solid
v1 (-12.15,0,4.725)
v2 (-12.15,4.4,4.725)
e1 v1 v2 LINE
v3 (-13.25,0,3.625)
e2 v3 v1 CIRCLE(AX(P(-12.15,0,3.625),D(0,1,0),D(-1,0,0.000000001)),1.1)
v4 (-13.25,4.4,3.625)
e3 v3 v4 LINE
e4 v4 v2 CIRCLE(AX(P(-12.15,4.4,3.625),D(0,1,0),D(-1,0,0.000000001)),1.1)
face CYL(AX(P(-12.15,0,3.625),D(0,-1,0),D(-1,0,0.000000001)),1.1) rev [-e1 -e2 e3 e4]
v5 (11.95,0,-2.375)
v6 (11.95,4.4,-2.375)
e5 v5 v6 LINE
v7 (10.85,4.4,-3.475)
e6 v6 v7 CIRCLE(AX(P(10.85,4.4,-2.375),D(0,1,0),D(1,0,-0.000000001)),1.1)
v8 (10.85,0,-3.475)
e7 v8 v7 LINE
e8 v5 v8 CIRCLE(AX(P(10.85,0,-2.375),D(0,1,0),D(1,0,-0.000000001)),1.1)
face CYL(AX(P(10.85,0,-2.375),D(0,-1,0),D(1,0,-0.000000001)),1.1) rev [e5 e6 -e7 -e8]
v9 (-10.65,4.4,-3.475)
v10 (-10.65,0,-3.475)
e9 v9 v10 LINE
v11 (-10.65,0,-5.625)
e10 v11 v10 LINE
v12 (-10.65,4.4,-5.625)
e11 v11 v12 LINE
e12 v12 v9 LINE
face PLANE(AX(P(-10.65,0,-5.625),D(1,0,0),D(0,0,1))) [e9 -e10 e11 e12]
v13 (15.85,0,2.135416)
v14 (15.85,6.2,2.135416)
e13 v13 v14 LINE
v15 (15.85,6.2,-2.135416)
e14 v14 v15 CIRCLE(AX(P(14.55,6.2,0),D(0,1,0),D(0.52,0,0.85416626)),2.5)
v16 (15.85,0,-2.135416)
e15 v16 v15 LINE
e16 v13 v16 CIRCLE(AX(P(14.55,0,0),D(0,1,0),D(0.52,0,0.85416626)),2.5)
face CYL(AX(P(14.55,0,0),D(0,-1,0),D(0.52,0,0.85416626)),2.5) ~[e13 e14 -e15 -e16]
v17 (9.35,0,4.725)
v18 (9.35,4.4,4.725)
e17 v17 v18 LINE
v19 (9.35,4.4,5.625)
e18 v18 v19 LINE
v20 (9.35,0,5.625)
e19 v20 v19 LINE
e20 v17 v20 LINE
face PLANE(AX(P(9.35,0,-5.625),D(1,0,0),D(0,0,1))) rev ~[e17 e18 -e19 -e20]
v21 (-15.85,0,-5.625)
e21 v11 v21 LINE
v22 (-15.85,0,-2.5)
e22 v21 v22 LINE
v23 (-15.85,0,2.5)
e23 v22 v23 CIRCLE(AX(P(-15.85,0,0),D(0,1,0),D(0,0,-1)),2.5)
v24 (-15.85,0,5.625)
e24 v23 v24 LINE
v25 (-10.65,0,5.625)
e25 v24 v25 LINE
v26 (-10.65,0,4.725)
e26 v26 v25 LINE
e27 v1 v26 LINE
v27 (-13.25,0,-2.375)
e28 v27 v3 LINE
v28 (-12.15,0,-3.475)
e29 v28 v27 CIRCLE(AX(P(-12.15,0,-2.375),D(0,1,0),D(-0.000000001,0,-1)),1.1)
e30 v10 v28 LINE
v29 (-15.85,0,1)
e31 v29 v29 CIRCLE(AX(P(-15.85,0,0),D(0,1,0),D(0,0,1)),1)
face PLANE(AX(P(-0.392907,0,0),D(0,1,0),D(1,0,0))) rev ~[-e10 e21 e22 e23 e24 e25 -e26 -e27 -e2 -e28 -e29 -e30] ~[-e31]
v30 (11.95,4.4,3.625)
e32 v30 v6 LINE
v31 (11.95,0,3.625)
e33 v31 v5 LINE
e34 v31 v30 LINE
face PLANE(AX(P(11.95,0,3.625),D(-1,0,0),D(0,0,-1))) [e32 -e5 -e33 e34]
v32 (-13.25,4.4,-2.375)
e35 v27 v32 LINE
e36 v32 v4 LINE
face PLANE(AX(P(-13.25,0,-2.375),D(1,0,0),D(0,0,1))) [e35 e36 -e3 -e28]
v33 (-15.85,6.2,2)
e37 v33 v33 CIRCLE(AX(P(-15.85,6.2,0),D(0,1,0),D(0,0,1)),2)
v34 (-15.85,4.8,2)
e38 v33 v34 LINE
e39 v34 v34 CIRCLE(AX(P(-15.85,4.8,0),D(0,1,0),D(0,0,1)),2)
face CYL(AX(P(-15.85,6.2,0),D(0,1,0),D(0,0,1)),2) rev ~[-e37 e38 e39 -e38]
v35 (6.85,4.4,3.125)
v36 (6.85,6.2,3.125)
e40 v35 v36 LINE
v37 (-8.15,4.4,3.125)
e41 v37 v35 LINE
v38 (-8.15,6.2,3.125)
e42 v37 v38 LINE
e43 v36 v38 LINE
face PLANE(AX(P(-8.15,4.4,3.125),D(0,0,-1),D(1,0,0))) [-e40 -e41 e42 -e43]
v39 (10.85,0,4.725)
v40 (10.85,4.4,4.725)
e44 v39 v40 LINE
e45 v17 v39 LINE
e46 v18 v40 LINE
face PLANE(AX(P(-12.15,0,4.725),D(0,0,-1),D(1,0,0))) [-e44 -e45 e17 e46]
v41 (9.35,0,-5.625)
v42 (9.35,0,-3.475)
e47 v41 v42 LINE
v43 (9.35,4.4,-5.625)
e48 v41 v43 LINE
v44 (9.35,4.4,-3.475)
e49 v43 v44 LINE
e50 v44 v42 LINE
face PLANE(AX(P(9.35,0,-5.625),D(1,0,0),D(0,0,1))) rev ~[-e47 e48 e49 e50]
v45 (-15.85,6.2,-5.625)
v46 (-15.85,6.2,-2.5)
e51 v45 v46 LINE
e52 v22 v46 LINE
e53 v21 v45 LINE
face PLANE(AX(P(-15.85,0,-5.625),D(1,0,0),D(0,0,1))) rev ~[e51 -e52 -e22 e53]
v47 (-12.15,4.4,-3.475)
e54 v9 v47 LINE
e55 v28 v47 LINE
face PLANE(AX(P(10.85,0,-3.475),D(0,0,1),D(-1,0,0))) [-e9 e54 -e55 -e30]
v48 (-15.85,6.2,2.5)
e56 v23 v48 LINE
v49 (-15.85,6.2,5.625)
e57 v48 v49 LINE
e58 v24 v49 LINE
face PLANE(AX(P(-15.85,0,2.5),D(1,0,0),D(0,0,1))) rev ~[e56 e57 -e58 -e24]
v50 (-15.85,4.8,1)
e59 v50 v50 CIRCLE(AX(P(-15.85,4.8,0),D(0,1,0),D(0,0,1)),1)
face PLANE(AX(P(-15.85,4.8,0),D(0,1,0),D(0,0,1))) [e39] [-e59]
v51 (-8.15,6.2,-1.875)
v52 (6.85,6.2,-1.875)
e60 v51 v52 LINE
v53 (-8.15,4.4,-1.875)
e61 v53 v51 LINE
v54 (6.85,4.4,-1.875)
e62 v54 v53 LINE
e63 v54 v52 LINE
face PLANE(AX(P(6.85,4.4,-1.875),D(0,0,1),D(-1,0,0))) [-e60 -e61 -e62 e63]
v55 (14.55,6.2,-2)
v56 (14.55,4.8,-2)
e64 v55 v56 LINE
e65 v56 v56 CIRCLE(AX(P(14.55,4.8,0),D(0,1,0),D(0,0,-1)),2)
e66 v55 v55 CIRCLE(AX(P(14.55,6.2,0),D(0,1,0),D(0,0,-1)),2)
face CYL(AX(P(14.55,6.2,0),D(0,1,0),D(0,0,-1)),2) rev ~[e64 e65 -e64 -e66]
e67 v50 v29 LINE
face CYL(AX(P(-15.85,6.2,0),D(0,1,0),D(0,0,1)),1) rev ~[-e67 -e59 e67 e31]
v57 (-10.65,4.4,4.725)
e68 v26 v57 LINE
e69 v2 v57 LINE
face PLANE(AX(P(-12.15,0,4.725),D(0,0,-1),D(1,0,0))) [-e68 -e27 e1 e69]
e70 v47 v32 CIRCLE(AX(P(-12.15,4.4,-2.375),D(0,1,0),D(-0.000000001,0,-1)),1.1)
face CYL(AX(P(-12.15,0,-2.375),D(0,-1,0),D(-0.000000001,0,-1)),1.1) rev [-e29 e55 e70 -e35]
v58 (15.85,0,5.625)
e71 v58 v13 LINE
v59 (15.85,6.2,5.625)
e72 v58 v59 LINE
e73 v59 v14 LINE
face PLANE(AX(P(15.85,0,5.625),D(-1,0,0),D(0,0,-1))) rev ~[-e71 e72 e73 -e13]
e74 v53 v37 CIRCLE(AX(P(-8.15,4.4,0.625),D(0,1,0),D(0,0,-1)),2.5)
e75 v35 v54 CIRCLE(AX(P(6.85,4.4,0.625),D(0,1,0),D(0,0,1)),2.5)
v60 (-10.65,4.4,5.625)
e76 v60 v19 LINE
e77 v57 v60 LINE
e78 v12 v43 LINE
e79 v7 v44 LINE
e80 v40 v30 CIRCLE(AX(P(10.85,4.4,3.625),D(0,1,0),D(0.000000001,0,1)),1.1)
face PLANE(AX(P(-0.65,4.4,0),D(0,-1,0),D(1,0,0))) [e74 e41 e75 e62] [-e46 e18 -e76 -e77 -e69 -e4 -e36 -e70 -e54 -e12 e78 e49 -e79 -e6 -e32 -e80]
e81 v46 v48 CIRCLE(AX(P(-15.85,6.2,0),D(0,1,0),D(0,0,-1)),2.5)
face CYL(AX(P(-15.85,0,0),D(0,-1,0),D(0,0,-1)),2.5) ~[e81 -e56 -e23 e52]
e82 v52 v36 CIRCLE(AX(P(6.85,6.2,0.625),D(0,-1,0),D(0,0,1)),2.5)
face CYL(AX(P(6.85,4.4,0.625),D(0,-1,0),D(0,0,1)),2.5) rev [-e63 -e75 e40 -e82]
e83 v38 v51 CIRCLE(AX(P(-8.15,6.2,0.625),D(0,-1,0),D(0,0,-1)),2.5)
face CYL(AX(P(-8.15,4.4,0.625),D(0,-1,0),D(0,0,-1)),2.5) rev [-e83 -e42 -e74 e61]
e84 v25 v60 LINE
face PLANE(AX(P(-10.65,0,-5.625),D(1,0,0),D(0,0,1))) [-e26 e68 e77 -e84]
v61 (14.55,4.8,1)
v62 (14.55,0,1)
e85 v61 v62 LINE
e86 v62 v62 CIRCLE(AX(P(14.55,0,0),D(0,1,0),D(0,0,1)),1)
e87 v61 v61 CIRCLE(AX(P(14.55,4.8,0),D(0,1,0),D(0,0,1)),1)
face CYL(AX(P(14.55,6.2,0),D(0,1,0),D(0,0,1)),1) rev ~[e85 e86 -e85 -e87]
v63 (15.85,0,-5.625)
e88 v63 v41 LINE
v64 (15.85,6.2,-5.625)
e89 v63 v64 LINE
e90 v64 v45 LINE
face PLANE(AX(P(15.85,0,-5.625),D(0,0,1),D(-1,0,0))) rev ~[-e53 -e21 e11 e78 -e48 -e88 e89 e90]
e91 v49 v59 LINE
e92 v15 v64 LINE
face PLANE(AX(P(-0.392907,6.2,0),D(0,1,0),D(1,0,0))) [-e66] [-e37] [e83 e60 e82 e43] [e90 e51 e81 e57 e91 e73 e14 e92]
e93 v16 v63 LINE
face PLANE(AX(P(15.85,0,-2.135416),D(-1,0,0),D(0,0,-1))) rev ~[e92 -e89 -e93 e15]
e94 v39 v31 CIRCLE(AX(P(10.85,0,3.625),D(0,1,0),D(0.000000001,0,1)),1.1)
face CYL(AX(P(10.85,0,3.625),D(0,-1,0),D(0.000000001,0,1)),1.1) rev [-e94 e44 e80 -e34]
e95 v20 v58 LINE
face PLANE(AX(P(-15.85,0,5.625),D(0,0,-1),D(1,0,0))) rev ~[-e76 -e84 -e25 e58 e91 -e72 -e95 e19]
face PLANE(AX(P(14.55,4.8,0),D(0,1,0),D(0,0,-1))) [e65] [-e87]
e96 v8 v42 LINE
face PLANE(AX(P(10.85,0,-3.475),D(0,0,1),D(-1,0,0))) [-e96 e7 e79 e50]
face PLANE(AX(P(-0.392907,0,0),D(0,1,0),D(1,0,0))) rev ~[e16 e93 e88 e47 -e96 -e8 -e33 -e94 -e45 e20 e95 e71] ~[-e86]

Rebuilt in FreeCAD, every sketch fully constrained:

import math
import FreeCAD as App
import Part
import Sketcher

V = App.Vector


def add_polygon(sketch, points):
    """Adds a closed chain of lines whose ends are joined by coincident constraints."""
    first, n = sketch.GeometryCount, len(points)
    for a, b in zip(points, points[1:] + points[:1]):
        sketch.addGeometry(Part.LineSegment(App.Vector(*a, 0), App.Vector(*b, 0)), False)
    for i in range(n):
        sketch.addConstraint(Sketcher.Constraint("Coincident", first + i, 2, first + (i + 1) % n, 1))

doc = App.newDocument("Part")
body = doc.addObject("PartDesign::Body", "Body")

sketch1 = body.newObject("Sketcher::SketchObject", "Sketch")
sketch1.AttachmentSupport = (doc.getObject("XZ_Plane"), [""])
sketch1.MapMode = "FlatFace"
sketch1.addGeometry([
    Part.LineSegment(V(-15.85, 5.625, 0), V(15.85, 5.625, 0)),
    Part.LineSegment(V(15.85, 5.625, 0), V(15.85, 2.135416, 0)),
    Part.ArcOfCircle(Part.Circle(V(14.55, 0, 0), V(0, 0, 1), 2.5), math.radians(-58.667749), math.radians(58.667749)),
    Part.LineSegment(V(15.85, -2.135416, 0), V(15.85, -5.625, 0)),
    Part.LineSegment(V(15.85, -5.625, 0), V(-15.85, -5.625, 0)),
    Part.LineSegment(V(-15.85, -5.625, 0), V(-15.85, -2.5, 0)),
    Part.ArcOfCircle(Part.Circle(V(-15.85, 0, 0), V(0, 0, 1), 2.5), math.radians(90), math.radians(270)),
    Part.LineSegment(V(-15.85, 2.5, 0), V(-15.85, 5.625, 0)),
], False)
sketch1.addConstraint([
    Sketcher.Constraint("Coincident", 0, 2, 1, 1),
    Sketcher.Constraint("Coincident", 1, 2, 2, 2),
    Sketcher.Constraint("Coincident", 2, 1, 3, 1),
    Sketcher.Constraint("Coincident", 3, 2, 4, 1),
    Sketcher.Constraint("Coincident", 4, 2, 5, 1),
    Sketcher.Constraint("Coincident", 5, 2, 6, 2),
    Sketcher.Constraint("Coincident", 6, 1, 7, 1),
    Sketcher.Constraint("Coincident", 7, 2, 0, 1),
    Sketcher.Constraint("Horizontal", 0),
    Sketcher.Constraint("Vertical", 1),
    Sketcher.Constraint("Vertical", 3),
    Sketcher.Constraint("Horizontal", 4),
    Sketcher.Constraint("Vertical", 5),
    Sketcher.Constraint("Vertical", 7),
    Sketcher.Constraint("Equal", 2, 6),
    Sketcher.Constraint("Symmetric", 0, 2, 4, 2, -1, 1),
    Sketcher.Constraint("Symmetric", 1, 2, 2, 1, -1),
    Sketcher.Constraint("Symmetric", 5, 2, 6, 1, -1),
    Sketcher.Constraint("Vertical", 6, 3, 4, 2),
    Sketcher.Constraint("Radius", 2, 2.5),
    Sketcher.Constraint("DistanceX", 0, 1, 0, 2, 31.7),
    Sketcher.Constraint("DistanceX", 6, 3, 2, 3, 30.4),
    Sketcher.Constraint("DistanceY", 5, 1, 5, 2, 3.125),
])
pad1 = body.newObject("PartDesign::Pad", "Pad")
pad1.Profile = sketch1
pad1.Length = 6.2
pad1.Reversed = True

sketch2 = body.newObject("Sketcher::SketchObject", "Sketch001")
sketch2.AttachmentSupport = (doc.getObject("XZ_Plane"), [""])
sketch2.MapMode = "FlatFace"
add_polygon(sketch2, [(-10.65, 5.625), (-10.65, -5.625), (9.35, -5.625), (9.35, 5.625)])
sketch2.addConstraint([
    Sketcher.Constraint("Vertical", 0),
    Sketcher.Constraint("Horizontal", 1),
    Sketcher.Constraint("Vertical", 2),
    Sketcher.Constraint("Horizontal", 3),
    Sketcher.Constraint("DistanceX", 1, 1, 1, 2, 20.0),
    Sketcher.Constraint("DistanceY", 0, 2, 0, 1, 11.25),
    Sketcher.Constraint("DistanceX", 0, 2, -1, 1, 10.65),
    Sketcher.Constraint("DistanceY", 0, 2, -1, 1, 5.625),
])
pocket1 = body.newObject("PartDesign::Pocket", "Pocket")
pocket1.Profile = sketch2
pocket1.Length = 4.4

sketch3 = body.newObject("Sketcher::SketchObject", "Sketch002")
sketch3.AttachmentSupport = (doc.getObject("XZ_Plane"), [""])
sketch3.MapMode = "FlatFace"
sketch3.addGeometry([
    Part.LineSegment(V(10.85, 4.625, 0), V(-12.15, 4.625, 0)),
    Part.ArcOfCircle(Part.Circle(V(-12.15, 3.625, 0), V(0, 0, 1), 1), math.radians(90), math.radians(180)),
    Part.LineSegment(V(-13.15, 3.625, 0), V(-13.15, -2.375, 0)),
    Part.ArcOfCircle(Part.Circle(V(-12.15, -2.375, 0), V(0, 0, 1), 1), math.radians(-180), math.radians(-90)),
    Part.LineSegment(V(-12.15, -3.375, 0), V(10.85, -3.375, 0)),
    Part.ArcOfCircle(Part.Circle(V(10.85, -2.375, 0), V(0, 0, 1), 1), math.radians(-90), math.radians(0)),
    Part.LineSegment(V(11.85, -2.375, 0), V(11.85, 3.625, 0)),
    Part.ArcOfCircle(Part.Circle(V(10.85, 3.625, 0), V(0, 0, 1), 1), math.radians(0), math.radians(90)),
], False)
sketch3.addConstraint([
    Sketcher.Constraint("Tangent", 0, 2, 1, 1),
    Sketcher.Constraint("Tangent", 1, 2, 2, 1),
    Sketcher.Constraint("Tangent", 2, 2, 3, 1),
    Sketcher.Constraint("Tangent", 3, 2, 4, 1),
    Sketcher.Constraint("Tangent", 4, 2, 5, 1),
    Sketcher.Constraint("Tangent", 5, 2, 6, 1),
    Sketcher.Constraint("Tangent", 6, 2, 7, 1),
    Sketcher.Constraint("Tangent", 7, 2, 0, 1),
    Sketcher.Constraint("Horizontal", 0),
    Sketcher.Constraint("Vertical", 2),
    Sketcher.Constraint("Horizontal", 4),
    Sketcher.Constraint("Vertical", 6),
    Sketcher.Constraint("Equal", 1, 3),
    Sketcher.Constraint("Equal", 3, 5),
    Sketcher.Constraint("Equal", 5, 7),
    Sketcher.Constraint("Radius", 1, 1.0),
    Sketcher.Constraint("DistanceX", 0, 2, 0, 1, 23.0),
    Sketcher.Constraint("DistanceY", 2, 2, 2, 1, 6.0),
    Sketcher.Constraint("DistanceX", 1, 3, -1, 1, 12.15),
    Sketcher.Constraint("DistanceY", -1, 1, 1, 3, 3.625),
])
pocket2 = body.newObject("PartDesign::Pocket", "Pocket001")
pocket2.Profile = sketch3
pocket2.Length = 4.4

sketch4 = body.newObject("Sketcher::SketchObject", "Sketch003")
sketch4.AttachmentSupport = (doc.getObject("XZ_Plane"), [""])
sketch4.MapMode = "FlatFace"
sketch4.AttachmentOffset = App.Placement(V(0, 0, -6.2), App.Rotation())
sketch4.addGeometry([
    Part.Circle(V(-15.85, 0, 0), V(0, 0, 1), 1),
    Part.Circle(V(14.55, 0, 0), V(0, 0, 1), 1),
], False)
sketch4.addConstraint([
    Sketcher.Constraint("Equal", 0, 1),
    Sketcher.Constraint("PointOnObject", 0, 3, -1),
    Sketcher.Constraint("PointOnObject", 1, 3, -1),
    Sketcher.Constraint("Diameter", 0, 2.0),
    Sketcher.Constraint("DistanceX", 0, 3, 1, 3, 30.4),
    Sketcher.Constraint("DistanceX", 0, 3, -1, 1, 15.85),
])
pocket3 = body.newObject("PartDesign::Pocket", "Pocket002")
pocket3.Profile = sketch4
pocket3.Type = "ThroughAll"
pocket3.Reversed = True

sketch5 = body.newObject("Sketcher::SketchObject", "Sketch004")
sketch5.AttachmentSupport = (doc.getObject("XZ_Plane"), [""])
sketch5.MapMode = "FlatFace"
sketch5.AttachmentOffset = App.Placement(V(0, 0, -6.2), App.Rotation())
sketch5.addGeometry([
    Part.Circle(V(-15.85, 0, 0), V(0, 0, 1), 2),
    Part.Circle(V(14.55, 0, 0), V(0, 0, 1), 2),
], False)
sketch5.addConstraint([
    Sketcher.Constraint("Equal", 0, 1),
    Sketcher.Constraint("PointOnObject", 0, 3, -1),
    Sketcher.Constraint("PointOnObject", 1, 3, -1),
    Sketcher.Constraint("Diameter", 0, 4.0),
    Sketcher.Constraint("DistanceX", 0, 3, 1, 3, 30.4),
    Sketcher.Constraint("DistanceX", 0, 3, -1, 1, 15.85),
])
pocket4 = body.newObject("PartDesign::Pocket", "Pocket003")
pocket4.Profile = sketch5
pocket4.Length = 1.4
pocket4.Reversed = True

sketch6 = body.newObject("Sketcher::SketchObject", "Sketch005")
sketch6.AttachmentSupport = (doc.getObject("XZ_Plane"), [""])
sketch6.MapMode = "FlatFace"
sketch6.addGeometry([
    Part.LineSegment(V(11.95, -2.375, 0), V(11.95, 3.625, 0)),
    Part.ArcOfCircle(Part.Circle(V(10.85, 3.625, 0), V(0, 0, 1), 1.1), math.radians(0), math.radians(90)),
    Part.LineSegment(V(10.85, 4.725, 0), V(-12.15, 4.725, 0)),
    Part.ArcOfCircle(Part.Circle(V(-12.15, 3.625, 0), V(0, 0, 1), 1.1), math.radians(90), math.radians(180)),
    Part.LineSegment(V(-13.25, 3.625, 0), V(-13.25, -2.375, 0)),
    Part.ArcOfCircle(Part.Circle(V(-12.15, -2.375, 0), V(0, 0, 1), 1.1), math.radians(-180), math.radians(-90)),
    Part.LineSegment(V(-12.15, -3.475, 0), V(10.85, -3.475, 0)),
    Part.ArcOfCircle(Part.Circle(V(10.85, -2.375, 0), V(0, 0, 1), 1.1), math.radians(-90), math.radians(0)),
], False)
sketch6.addConstraint([
    Sketcher.Constraint("Tangent", 0, 2, 1, 1),
    Sketcher.Constraint("Tangent", 1, 2, 2, 1),
    Sketcher.Constraint("Tangent", 2, 2, 3, 1),
    Sketcher.Constraint("Tangent", 3, 2, 4, 1),
    Sketcher.Constraint("Tangent", 4, 2, 5, 1),
    Sketcher.Constraint("Tangent", 5, 2, 6, 1),
    Sketcher.Constraint("Tangent", 6, 2, 7, 1),
    Sketcher.Constraint("Tangent", 7, 2, 0, 1),
    Sketcher.Constraint("Vertical", 0),
    Sketcher.Constraint("Horizontal", 2),
    Sketcher.Constraint("Vertical", 4),
    Sketcher.Constraint("Horizontal", 6),
    Sketcher.Constraint("Equal", 1, 3),
    Sketcher.Constraint("Equal", 3, 5),
    Sketcher.Constraint("Equal", 5, 7),
    Sketcher.Constraint("Radius", 1, 1.1),
    Sketcher.Constraint("DistanceX", 2, 2, 2, 1, 23.0),
    Sketcher.Constraint("DistanceY", 0, 1, 0, 2, 6.0),
    Sketcher.Constraint("DistanceX", -1, 1, 1, 3, 10.85),
    Sketcher.Constraint("DistanceY", -1, 1, 1, 3, 3.625),
])
pocket5 = body.newObject("PartDesign::Pocket", "Pocket004")
pocket5.Profile = sketch6
pocket5.Length = 4.4

sketch7 = body.newObject("Sketcher::SketchObject", "Sketch006")
sketch7.AttachmentSupport = (doc.getObject("XZ_Plane"), [""])
sketch7.MapMode = "FlatFace"
sketch7.AttachmentOffset = App.Placement(V(0, 0, -4.4), App.Rotation())
sketch7.addGeometry([
    Part.LineSegment(V(6.85, 3.125, 0), V(-8.15, 3.125, 0)),
    Part.ArcOfCircle(Part.Circle(V(-8.15, 0.625, 0), V(0, 0, 1), 2.5), math.radians(90), math.radians(270)),
    Part.LineSegment(V(-8.15, -1.875, 0), V(6.85, -1.875, 0)),
    Part.ArcOfCircle(Part.Circle(V(6.85, 0.625, 0), V(0, 0, 1), 2.5), math.radians(-90), math.radians(90)),
], False)
sketch7.addConstraint([
    Sketcher.Constraint("Tangent", 0, 2, 1, 1),
    Sketcher.Constraint("Tangent", 1, 2, 2, 1),
    Sketcher.Constraint("Tangent", 2, 2, 3, 1),
    Sketcher.Constraint("Tangent", 3, 2, 0, 1),
    Sketcher.Constraint("Horizontal", 0),
    Sketcher.Constraint("Horizontal", 2),
    Sketcher.Constraint("Radius", 1, 2.5),
    Sketcher.Constraint("DistanceX", 0, 2, 0, 1, 15.0),
    Sketcher.Constraint("DistanceX", 1, 3, -1, 1, 8.15),
    Sketcher.Constraint("DistanceY", -1, 1, 1, 3, 0.625),
])
pocket6 = body.newObject("PartDesign::Pocket", "Pocket005")
pocket6.Profile = sketch7
pocket6.Length = 4.2

doc.recompute()
